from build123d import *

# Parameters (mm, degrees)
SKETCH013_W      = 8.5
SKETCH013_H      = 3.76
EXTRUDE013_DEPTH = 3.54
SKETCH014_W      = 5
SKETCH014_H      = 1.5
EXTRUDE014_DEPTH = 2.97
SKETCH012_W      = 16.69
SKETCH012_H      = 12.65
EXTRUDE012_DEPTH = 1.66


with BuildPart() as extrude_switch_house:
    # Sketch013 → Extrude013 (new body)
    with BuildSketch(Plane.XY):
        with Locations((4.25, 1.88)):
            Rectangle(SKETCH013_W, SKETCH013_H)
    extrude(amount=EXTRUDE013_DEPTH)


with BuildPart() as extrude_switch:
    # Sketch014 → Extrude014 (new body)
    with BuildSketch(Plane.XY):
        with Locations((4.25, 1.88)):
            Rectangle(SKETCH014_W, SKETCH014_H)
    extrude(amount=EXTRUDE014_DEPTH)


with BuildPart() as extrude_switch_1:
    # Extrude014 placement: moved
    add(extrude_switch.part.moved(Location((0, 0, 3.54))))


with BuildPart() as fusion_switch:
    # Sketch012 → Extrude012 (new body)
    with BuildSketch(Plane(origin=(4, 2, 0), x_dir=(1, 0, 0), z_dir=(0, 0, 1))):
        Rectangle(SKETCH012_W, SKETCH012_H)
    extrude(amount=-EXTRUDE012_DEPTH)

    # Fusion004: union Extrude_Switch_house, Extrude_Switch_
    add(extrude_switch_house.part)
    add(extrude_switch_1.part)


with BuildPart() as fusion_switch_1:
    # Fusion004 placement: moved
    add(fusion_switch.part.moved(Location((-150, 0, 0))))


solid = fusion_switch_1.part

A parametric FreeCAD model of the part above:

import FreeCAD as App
import Part
import Sketcher
from FreeCAD import Vector
Q = App.Units.Quantity


def add_polygon(sketch, points):
    """Adds a closed chain of lines whose ends are joined by coincident constraints."""
    first, n = sketch.GeometryCount, len(points)
    for a, b in zip(points, points[1:] + points[:1]):
        sketch.addGeometry(Part.LineSegment(App.Vector(*a, 0), App.Vector(*b, 0)), False)
    for i in range(n):
        sketch.addConstraint(Sketcher.Constraint("Coincident", first + i, 2, first + (i + 1) % n, 1))

doc = App.newDocument("Part")
body = doc.addObject("PartDesign::Body", "Body")

sketch1 = body.newObject("Sketcher::SketchObject", "Sketch")
sketch1.AttachmentSupport = (doc.getObject("XY_Plane"), [""])
sketch1.MapMode = "FlatFace"
add_polygon(sketch1, [(0, 3.8), (0, 0), (8.5, 0), (8.5, 3.8)])
sketch1.addConstraint([
    Sketcher.Constraint("Vertical", 0),
    Sketcher.Constraint("Horizontal", 1),
    Sketcher.Constraint("Vertical", 2),
    Sketcher.Constraint("Horizontal", 3),
    Sketcher.Constraint("Coincident", 0, 2, -1, 1),
    Sketcher.Constraint("DistanceX", 1, 1, 1, 2, Q("8.5 mm")),
    Sketcher.Constraint("DistanceY", 0, 2, 0, 1, Q("3.76 mm")),
])
pad1 = body.newObject("PartDesign::Pad", "Pad")
pad1.Profile = sketch1
pad1.Length = 3.54
body2 = doc.addObject("PartDesign::Body", "Body001")

sketch2 = body2.newObject("Sketcher::SketchObject", "Sketch001")
sketch2.AttachmentSupport = (doc.getObject("XY_Plane001"), [""])
sketch2.MapMode = "FlatFace"
add_polygon(sketch2, [(1.8, 2.6), (1.8, 1.1), (6.8, 1.1), (6.8, 2.6)])
sketch2.addConstraint([
    Sketcher.Constraint("Vertical", 0),
    Sketcher.Constraint("Horizontal", 1),
    Sketcher.Constraint("Vertical", 2),
    Sketcher.Constraint("Horizontal", 3),
    Sketcher.Constraint("DistanceX", 1, 1, 1, 2, Q("5 mm")),
    Sketcher.Constraint("DistanceY", 0, 2, 0, 1, Q("1.5 mm")),
    Sketcher.Constraint("DistanceX", -1, 1, 0, 2, Q("1.75 mm")),
    Sketcher.Constraint("DistanceY", -1, 1, 0, 2, Q("1.13 mm")),
])
pad2 = body2.newObject("PartDesign::Pad", "Pad001")
pad2.Profile = sketch2
pad2.Length = 2.97
body3 = doc.addObject("PartDesign::Body", "Body002")
doc.recompute()

body2.Placement = App.Placement(Vector(0, 0, 3.54), App.Rotation(Vector(0, 0, 1), 0))
boolean = body3.newObject("PartDesign::Boolean", "Boolean")
boolean.Type = "Fuse"
boolean.addObjects([body2])
body4 = doc.addObject("PartDesign::Body", "Body003")

sketch3 = body4.newObject("Sketcher::SketchObject", "Sketch002")
sketch3.AttachmentSupport = (doc.getObject("XY_Plane003"), [""])
sketch3.MapMode = "FlatFace"
add_polygon(sketch3, [(-4, 8), (-4, -4), (12, -4), (12, 8)])
sketch3.addConstraint([
    Sketcher.Constraint("Vertical", 0),
    Sketcher.Constraint("Horizontal", 1),
    Sketcher.Constraint("Vertical", 2),
    Sketcher.Constraint("Horizontal", 3),
    Sketcher.Constraint("DistanceX", 1, 1, 1, 2, Q("16.69 mm")),
    Sketcher.Constraint("DistanceY", 0, 2, 0, 1, Q("12.65 mm")),
    Sketcher.Constraint("DistanceX", 0, 2, -1, 1, Q("4.345 mm")),
    Sketcher.Constraint("DistanceY", 0, 2, -1, 1, Q("4.325 mm")),
])
pad3 = body4.newObject("PartDesign::Pad", "Pad002")
pad3.Profile = sketch3
pad3.Length = 1.66
pad3.Reversed = True
doc.recompute()

boolean2 = body4.newObject("PartDesign::Boolean", "Boolean001")
boolean2.Type = "Fuse"
boolean2.addObjects([body])
doc.recompute()

boolean3 = body4.newObject("PartDesign::Boolean", "Boolean002")
boolean3.Type = "Fuse"
boolean3.addObjects([body3])
body5 = doc.addObject("PartDesign::Body", "Body004")
doc.recompute()

body4.Placement = App.Placement(Vector(-150, 0, 0), App.Rotation(Vector(0, 0, 1), 0))
boolean4 = body5.newObject("PartDesign::Boolean", "Boolean003")
boolean4.Type = "Fuse"
boolean4.addObjects([body4])

doc.recompute()
